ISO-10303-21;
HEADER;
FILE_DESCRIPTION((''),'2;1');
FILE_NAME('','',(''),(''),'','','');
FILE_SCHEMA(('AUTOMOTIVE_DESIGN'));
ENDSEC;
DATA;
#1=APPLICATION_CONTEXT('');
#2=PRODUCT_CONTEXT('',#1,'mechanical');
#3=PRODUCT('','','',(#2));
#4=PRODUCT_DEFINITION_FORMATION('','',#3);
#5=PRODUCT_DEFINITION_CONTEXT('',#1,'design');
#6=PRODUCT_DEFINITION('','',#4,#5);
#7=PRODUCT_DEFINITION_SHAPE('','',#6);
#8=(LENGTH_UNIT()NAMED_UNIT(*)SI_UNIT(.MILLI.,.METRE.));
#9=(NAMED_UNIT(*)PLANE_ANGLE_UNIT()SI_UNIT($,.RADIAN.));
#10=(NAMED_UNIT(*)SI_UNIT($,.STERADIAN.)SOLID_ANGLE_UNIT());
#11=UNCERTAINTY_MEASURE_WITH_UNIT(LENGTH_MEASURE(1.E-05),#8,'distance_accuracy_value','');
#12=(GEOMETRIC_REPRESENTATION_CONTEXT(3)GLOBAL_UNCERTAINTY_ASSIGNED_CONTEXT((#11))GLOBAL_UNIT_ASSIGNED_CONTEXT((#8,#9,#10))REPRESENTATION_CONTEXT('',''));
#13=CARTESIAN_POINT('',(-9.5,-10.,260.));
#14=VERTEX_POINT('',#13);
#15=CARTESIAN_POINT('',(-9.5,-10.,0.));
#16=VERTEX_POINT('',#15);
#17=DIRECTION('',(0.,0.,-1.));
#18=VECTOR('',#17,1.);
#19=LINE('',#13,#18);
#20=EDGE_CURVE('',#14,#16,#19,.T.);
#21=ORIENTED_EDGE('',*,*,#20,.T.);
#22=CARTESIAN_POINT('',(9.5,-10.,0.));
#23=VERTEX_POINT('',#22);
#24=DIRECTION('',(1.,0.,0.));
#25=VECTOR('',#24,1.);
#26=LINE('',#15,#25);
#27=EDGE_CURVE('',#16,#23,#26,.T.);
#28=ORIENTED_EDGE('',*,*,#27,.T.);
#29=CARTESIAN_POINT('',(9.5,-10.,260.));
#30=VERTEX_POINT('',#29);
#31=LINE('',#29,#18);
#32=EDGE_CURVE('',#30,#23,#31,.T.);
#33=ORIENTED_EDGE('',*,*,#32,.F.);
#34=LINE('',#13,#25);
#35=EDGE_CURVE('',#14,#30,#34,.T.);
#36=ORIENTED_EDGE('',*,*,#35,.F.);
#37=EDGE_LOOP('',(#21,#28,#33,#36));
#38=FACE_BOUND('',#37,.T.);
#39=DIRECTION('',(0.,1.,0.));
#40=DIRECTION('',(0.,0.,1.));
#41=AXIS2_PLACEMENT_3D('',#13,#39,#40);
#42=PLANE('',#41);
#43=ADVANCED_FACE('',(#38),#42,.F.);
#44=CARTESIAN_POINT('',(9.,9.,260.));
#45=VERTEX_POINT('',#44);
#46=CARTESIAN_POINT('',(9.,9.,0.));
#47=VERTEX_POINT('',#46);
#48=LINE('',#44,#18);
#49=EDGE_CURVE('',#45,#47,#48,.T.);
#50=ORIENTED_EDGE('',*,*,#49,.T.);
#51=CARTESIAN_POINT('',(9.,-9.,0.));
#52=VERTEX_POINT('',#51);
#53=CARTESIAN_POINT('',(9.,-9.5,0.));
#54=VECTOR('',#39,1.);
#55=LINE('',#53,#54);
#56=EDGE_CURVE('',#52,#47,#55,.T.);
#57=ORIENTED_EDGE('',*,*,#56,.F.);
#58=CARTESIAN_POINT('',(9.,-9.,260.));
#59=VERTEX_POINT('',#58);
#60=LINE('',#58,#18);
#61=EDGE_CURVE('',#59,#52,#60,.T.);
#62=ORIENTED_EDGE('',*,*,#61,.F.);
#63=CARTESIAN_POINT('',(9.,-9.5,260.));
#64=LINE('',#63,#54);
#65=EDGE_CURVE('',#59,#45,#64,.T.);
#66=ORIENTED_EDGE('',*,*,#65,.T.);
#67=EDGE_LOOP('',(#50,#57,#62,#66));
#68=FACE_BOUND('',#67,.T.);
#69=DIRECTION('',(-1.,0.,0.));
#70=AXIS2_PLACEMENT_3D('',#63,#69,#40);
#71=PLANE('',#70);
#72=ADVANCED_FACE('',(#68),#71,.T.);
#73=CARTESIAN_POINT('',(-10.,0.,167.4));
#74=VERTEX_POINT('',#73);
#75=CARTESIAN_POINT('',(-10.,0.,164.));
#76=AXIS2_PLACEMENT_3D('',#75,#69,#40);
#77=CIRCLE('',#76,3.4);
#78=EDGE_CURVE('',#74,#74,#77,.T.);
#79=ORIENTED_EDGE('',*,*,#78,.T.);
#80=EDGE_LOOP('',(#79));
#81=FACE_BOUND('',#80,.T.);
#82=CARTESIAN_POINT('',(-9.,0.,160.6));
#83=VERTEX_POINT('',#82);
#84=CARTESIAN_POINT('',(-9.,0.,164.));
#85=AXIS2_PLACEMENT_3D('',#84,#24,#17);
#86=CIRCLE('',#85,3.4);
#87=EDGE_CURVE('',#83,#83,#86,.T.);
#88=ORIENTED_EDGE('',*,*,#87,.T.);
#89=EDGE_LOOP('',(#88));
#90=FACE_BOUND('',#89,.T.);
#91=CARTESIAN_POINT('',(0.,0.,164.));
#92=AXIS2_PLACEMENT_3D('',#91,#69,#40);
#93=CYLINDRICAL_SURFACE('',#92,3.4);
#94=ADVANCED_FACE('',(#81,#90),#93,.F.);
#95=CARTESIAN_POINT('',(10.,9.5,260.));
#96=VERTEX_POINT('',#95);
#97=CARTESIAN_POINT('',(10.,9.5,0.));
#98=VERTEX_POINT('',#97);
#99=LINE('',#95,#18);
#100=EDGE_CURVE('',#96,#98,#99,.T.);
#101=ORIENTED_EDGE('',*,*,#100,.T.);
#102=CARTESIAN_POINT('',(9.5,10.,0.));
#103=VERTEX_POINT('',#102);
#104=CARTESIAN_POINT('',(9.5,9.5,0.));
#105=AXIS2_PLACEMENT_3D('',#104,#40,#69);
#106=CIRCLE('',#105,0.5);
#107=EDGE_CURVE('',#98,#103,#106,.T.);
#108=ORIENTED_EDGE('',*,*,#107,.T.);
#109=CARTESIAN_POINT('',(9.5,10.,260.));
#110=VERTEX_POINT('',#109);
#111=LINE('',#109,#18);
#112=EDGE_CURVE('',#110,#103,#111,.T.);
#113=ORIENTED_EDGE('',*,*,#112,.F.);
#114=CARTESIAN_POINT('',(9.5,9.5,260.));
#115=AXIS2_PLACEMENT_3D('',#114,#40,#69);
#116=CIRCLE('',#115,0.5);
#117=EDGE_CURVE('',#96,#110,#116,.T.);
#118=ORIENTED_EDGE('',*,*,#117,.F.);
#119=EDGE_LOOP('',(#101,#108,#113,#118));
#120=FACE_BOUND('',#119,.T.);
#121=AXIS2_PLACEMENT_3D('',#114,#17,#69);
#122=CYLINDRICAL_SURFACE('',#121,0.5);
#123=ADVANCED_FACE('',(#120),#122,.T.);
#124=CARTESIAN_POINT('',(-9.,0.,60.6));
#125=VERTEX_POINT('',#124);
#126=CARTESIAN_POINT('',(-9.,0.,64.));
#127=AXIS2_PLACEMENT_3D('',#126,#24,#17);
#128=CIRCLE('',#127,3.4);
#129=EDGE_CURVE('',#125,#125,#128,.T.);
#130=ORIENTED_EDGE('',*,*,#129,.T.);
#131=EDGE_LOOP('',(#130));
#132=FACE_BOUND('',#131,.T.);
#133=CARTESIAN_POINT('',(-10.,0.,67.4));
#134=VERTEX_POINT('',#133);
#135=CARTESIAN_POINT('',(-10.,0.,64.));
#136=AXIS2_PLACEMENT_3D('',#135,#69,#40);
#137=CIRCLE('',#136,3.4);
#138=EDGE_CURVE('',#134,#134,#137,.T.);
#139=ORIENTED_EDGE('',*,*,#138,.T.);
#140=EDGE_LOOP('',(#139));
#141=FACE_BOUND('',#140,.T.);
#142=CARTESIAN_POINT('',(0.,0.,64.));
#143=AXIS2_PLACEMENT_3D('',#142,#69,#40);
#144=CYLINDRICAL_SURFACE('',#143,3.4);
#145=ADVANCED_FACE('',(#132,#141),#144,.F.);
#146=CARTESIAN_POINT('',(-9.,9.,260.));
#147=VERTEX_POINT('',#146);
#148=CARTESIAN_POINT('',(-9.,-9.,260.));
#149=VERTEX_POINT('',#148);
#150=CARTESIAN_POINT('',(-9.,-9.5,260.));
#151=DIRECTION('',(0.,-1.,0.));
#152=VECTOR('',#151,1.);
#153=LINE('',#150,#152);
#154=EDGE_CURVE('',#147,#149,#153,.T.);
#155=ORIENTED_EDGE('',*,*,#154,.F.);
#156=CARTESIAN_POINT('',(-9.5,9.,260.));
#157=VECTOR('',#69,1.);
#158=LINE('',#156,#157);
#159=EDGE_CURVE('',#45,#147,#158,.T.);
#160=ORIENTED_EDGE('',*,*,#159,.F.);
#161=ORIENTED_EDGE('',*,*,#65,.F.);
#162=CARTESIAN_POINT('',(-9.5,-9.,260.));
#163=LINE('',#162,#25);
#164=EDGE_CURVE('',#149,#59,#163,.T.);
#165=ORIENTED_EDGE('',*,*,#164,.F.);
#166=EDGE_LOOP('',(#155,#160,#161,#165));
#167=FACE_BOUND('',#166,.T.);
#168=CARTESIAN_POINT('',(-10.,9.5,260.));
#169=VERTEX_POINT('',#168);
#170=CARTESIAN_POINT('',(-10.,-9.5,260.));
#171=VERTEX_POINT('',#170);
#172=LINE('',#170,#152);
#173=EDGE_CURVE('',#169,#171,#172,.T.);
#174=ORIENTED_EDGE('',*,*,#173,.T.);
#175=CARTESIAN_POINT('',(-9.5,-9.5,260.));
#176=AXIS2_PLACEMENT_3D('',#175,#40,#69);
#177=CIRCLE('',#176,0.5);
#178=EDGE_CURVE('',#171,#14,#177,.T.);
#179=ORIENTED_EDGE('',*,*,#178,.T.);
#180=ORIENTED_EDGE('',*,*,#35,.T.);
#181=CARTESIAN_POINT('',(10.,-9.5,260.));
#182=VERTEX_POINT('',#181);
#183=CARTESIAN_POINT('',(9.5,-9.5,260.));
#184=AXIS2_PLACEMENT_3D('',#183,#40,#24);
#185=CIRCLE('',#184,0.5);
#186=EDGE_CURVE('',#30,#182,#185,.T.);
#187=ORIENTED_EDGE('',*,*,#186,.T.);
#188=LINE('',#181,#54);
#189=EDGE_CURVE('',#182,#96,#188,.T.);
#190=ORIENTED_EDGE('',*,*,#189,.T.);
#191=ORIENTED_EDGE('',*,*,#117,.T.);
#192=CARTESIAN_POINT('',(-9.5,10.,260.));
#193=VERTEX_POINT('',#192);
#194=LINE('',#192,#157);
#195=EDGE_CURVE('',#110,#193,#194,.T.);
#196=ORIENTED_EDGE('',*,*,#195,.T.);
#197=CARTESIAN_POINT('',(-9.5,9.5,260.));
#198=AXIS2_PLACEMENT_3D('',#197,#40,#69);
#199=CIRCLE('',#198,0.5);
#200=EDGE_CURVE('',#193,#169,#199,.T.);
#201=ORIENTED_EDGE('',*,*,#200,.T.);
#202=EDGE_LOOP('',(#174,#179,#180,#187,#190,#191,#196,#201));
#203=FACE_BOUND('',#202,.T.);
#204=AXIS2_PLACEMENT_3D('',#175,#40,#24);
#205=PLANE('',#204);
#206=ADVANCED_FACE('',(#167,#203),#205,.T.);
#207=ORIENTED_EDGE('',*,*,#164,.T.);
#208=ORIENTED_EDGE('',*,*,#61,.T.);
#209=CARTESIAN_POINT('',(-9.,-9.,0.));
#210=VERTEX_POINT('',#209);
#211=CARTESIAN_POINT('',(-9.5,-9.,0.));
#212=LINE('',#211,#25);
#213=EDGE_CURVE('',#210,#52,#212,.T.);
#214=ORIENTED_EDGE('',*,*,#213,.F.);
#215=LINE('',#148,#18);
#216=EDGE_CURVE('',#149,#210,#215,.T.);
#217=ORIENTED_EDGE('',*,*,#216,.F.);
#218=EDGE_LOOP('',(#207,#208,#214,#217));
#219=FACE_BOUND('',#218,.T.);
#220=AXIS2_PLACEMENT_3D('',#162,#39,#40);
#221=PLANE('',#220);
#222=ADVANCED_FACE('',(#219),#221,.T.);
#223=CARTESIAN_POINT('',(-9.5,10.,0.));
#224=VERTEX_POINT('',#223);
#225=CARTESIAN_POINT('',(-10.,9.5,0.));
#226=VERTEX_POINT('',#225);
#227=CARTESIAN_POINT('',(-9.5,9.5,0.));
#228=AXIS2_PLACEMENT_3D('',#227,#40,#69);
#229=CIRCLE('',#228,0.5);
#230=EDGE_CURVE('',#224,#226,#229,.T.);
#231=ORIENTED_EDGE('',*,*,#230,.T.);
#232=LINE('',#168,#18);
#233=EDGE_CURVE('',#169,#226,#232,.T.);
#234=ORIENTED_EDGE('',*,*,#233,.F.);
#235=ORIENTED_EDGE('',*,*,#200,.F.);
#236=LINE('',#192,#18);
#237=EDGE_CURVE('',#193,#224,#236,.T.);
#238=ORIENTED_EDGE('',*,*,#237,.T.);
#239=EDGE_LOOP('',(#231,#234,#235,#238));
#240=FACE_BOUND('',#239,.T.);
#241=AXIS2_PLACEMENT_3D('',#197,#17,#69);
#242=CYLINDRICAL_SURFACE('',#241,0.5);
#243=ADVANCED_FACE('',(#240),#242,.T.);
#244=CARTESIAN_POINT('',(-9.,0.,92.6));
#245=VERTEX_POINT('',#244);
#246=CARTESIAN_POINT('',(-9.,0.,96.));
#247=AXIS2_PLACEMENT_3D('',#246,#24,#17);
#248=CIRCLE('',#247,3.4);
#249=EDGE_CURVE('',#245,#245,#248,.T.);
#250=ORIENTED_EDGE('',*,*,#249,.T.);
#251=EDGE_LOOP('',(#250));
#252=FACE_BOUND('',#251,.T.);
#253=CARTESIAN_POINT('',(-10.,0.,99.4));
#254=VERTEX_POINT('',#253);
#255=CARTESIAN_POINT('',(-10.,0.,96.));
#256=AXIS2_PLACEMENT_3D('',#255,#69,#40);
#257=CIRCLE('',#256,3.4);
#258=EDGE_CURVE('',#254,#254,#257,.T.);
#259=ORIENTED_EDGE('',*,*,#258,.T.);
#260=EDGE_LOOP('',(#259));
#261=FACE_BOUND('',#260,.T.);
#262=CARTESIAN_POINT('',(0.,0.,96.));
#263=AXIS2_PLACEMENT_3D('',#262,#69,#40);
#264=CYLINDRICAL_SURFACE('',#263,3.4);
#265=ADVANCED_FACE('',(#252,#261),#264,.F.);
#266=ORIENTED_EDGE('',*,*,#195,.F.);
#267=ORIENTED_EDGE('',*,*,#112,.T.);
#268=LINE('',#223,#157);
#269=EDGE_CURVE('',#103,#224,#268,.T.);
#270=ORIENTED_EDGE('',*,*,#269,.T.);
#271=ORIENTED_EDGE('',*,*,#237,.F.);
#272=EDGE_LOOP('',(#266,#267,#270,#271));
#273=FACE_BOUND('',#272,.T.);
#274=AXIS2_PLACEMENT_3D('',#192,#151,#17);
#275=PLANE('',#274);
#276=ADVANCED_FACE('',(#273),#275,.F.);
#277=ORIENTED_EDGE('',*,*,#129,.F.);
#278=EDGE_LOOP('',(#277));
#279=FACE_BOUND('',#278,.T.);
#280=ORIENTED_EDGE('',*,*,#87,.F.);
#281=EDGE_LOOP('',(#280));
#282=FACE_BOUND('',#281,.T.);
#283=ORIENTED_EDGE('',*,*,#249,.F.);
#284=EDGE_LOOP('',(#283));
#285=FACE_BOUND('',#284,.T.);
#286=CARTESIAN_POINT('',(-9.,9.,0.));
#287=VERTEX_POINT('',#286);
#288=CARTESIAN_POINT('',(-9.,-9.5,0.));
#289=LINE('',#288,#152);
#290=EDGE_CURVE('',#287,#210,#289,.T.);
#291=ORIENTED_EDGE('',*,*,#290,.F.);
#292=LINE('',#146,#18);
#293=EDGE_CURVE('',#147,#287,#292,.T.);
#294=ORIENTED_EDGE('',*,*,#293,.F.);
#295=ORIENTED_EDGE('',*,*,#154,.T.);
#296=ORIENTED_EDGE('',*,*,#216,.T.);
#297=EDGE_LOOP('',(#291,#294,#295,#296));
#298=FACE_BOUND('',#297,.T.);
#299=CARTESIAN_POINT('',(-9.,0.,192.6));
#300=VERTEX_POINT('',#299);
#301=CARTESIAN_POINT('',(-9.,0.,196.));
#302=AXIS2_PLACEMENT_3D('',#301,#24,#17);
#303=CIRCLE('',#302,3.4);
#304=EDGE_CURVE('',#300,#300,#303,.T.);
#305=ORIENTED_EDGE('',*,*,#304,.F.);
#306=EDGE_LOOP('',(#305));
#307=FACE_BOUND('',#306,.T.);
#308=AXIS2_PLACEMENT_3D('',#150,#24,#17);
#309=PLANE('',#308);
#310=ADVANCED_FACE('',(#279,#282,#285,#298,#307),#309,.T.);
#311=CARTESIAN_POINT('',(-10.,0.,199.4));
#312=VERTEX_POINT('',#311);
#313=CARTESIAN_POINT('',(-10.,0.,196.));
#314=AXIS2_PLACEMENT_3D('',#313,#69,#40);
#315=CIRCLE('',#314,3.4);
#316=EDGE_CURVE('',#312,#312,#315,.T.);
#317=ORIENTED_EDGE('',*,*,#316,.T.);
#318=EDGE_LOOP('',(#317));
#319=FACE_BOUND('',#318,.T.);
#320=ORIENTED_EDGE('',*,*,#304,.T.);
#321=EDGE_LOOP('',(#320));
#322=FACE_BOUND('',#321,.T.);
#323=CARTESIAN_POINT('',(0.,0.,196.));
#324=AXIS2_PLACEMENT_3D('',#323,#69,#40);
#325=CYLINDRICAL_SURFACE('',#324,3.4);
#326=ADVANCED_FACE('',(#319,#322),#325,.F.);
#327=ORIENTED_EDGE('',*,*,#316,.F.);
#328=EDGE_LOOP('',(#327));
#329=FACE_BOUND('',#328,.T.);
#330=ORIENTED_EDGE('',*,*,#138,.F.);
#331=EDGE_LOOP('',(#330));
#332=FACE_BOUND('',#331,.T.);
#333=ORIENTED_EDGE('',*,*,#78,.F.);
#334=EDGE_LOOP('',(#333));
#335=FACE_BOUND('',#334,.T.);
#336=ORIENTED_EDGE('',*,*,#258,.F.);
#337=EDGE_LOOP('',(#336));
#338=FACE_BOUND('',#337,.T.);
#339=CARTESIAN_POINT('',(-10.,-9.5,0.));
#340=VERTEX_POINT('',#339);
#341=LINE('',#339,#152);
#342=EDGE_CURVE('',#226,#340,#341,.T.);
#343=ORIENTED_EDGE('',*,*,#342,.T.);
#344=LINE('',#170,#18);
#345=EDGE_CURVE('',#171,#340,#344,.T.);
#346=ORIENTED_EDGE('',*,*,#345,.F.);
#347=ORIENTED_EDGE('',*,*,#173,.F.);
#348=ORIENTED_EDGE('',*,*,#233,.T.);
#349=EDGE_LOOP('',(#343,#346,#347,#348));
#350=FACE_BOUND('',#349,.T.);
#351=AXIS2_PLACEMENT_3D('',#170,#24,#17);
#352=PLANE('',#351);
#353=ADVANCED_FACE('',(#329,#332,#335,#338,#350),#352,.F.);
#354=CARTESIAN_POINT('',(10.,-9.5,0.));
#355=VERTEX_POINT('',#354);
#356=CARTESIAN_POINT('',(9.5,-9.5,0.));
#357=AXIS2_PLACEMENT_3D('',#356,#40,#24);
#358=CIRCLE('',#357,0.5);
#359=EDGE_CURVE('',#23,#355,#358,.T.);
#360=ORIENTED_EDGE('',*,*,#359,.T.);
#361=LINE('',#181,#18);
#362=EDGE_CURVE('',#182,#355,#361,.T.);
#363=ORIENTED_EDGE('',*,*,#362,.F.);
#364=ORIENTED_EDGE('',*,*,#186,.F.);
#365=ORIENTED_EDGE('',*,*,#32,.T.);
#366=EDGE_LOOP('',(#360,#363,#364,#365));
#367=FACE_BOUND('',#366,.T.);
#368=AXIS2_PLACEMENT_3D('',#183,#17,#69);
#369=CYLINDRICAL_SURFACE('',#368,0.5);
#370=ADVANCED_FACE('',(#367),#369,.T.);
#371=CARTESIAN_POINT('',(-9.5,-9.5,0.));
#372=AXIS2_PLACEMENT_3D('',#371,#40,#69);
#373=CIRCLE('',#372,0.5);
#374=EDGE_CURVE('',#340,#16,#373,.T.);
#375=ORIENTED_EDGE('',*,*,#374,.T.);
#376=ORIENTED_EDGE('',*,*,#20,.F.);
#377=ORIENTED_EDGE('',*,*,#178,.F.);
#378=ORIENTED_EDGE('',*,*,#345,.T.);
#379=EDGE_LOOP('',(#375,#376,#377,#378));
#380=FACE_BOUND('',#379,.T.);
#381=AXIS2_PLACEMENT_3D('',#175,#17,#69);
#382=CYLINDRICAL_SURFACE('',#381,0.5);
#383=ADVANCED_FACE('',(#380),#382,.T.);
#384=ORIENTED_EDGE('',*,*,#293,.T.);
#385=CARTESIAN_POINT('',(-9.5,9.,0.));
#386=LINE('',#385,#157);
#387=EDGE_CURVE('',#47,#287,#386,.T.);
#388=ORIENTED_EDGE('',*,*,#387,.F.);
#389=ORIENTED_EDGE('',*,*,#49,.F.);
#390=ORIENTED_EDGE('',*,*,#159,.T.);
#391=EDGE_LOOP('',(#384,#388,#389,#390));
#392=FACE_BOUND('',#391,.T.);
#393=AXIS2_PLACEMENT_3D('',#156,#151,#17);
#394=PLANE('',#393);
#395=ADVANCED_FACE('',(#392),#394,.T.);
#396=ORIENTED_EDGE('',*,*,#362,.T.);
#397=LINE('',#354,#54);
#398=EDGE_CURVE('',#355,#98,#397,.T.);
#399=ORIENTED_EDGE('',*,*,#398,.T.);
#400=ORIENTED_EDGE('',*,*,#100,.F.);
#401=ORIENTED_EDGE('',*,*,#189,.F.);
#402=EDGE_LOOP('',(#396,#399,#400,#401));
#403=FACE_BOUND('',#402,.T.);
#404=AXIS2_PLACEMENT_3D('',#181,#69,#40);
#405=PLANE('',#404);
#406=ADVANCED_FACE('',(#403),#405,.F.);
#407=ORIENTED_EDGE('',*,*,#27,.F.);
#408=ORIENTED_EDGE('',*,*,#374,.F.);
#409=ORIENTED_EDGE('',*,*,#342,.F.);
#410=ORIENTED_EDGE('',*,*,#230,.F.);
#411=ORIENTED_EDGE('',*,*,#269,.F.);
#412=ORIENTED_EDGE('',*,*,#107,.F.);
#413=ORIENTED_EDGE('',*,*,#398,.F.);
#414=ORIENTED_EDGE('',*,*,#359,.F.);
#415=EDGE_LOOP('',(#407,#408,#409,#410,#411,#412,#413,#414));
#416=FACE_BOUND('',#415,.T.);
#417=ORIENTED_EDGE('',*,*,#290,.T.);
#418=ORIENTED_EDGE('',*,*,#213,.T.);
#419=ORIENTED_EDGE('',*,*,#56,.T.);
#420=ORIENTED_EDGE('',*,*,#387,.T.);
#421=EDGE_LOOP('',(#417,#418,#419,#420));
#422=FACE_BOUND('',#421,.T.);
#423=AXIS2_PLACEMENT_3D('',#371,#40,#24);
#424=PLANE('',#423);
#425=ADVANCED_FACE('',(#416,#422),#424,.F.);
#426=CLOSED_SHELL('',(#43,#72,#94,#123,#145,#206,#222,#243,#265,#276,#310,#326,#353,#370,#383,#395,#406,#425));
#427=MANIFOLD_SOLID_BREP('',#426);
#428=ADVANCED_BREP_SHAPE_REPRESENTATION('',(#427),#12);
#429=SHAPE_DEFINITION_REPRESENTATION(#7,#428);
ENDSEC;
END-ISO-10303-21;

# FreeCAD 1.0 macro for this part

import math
import FreeCAD as App
import Part
import Sketcher

V = App.Vector


def add_polygon(sketch, points):
    """Adds a closed chain of lines whose ends are joined by coincident constraints."""
    first, n = sketch.GeometryCount, len(points)
    for a, b in zip(points, points[1:] + points[:1]):
        sketch.addGeometry(Part.LineSegment(App.Vector(*a, 0), App.Vector(*b, 0)), False)
    for i in range(n):
        sketch.addConstraint(Sketcher.Constraint("Coincident", first + i, 2, first + (i + 1) % n, 1))

doc = App.newDocument("Part")
params = doc.addObject("Spreadsheet::Sheet", "Params")
for row, (alias, value) in enumerate([
    ("sketch1_radius", "0.5 mm"),
    ("sketch1_width", "19 mm"),
    ("sketch1_width2", "18 mm"),
    ("pad1_length", "260 mm"),
    ("sketch2_diameter", "6.8 mm"),
    ("pocket1_length", "10 mm"),
], start=1):
    params.set(f"A{row}", alias)
    params.set(f"B{row}", "=" + value)
    params.setAlias(f"B{row}", alias)

body = doc.addObject("PartDesign::Body", "Body")

# Sketch on XY plane
sketch1 = body.newObject("Sketcher::SketchObject", "Sketch")
sketch1.AttachmentSupport = (doc.getObject("XY_Plane"), [""])
sketch1.MapMode = "FlatFace"
sketch1.addGeometry(Part.LineSegment(V(-10, 9.5, 0), V(-10, -9.5, 0)), False)  # 0
sketch1.addGeometry(Part.ArcOfCircle(Part.Circle(V(-9.5, -9.5, 0), V(0, 0, 1), 0.5), math.radians(180), math.radians(270)), False)  # 1
sketch1.addGeometry(Part.LineSegment(V(-9.5, -10, 0), V(9.5, -10, 0)), False)  # 2
sketch1.addGeometry(Part.ArcOfCircle(Part.Circle(V(9.5, -9.5, 0), V(0, 0, 1), 0.5), math.radians(-90), math.radians(0)), False)  # 3
sketch1.addGeometry(Part.LineSegment(V(10, -9.5, 0), V(10, 9.5, 0)), False)  # 4
sketch1.addGeometry(Part.ArcOfCircle(Part.Circle(V(9.5, 9.5, 0), V(0, 0, 1), 0.5), math.radians(0), math.radians(90)), False)  # 5
sketch1.addGeometry(Part.LineSegment(V(9.5, 10, 0), V(-9.5, 10, 0)), False)  # 6
sketch1.addGeometry(Part.ArcOfCircle(Part.Circle(V(-9.5, 9.5, 0), V(0, 0, 1), 0.5), math.radians(90), math.radians(180)), False)  # 7
add_polygon(sketch1, [(9, -9), (-9, -9), (-9, 9), (9, 9)])  # lines 8-11
sketch1.addConstraint(Sketcher.Constraint("Tangent", 0, 2, 1, 1))
sketch1.addConstraint(Sketcher.Constraint("Tangent", 1, 2, 2, 1))
sketch1.addConstraint(Sketcher.Constraint("Tangent", 2, 2, 3, 1))
sketch1.addConstraint(Sketcher.Constraint("Tangent", 3, 2, 4, 1))
sketch1.addConstraint(Sketcher.Constraint("Tangent", 4, 2, 5, 1))
sketch1.addConstraint(Sketcher.Constraint("Tangent", 5, 2, 6, 1))
sketch1.addConstraint(Sketcher.Constraint("Tangent", 6, 2, 7, 1))
sketch1.addConstraint(Sketcher.Constraint("Tangent", 7, 2, 0, 1))
sketch1.addConstraint(Sketcher.Constraint("Vertical", 0))
sketch1.addConstraint(Sketcher.Constraint("Horizontal", 2))
sketch1.addConstraint(Sketcher.Constraint("Vertical", 4))
sketch1.addConstraint(Sketcher.Constraint("Horizontal", 6))
sketch1.addConstraint(Sketcher.Constraint("Horizontal", 8))
sketch1.addConstraint(Sketcher.Constraint("Vertical", 9))
sketch1.addConstraint(Sketcher.Constraint("Horizontal", 10))
sketch1.addConstraint(Sketcher.Constraint("Vertical", 11))
sketch1.addConstraint(Sketcher.Constraint("Equal", 1, 3))
sketch1.addConstraint(Sketcher.Constraint("Equal", 3, 5))
sketch1.addConstraint(Sketcher.Constraint("Equal", 5, 7))
sketch1.addConstraint(Sketcher.Constraint("Symmetric", 1, 3, 5, 3, -1, 1))
sketch1.addConstraint(Sketcher.Constraint("Symmetric", 8, 2, 10, 2, -1, 1))
sketch1.addConstraint(Sketcher.Constraint("Equal", 6, 0))
sketch1.addConstraint(Sketcher.Constraint("Equal", 10, 9))
sketch1.addConstraint(Sketcher.Constraint("Radius", 1, 0.5))
sketch1.addConstraint(Sketcher.Constraint("DistanceX", 2, 1, 2, 2, 19.0))
sketch1.addConstraint(Sketcher.Constraint("DistanceX", 8, 2, 8, 1, 18.0))
sketch1.setExpression("Constraints[27]", "Params.sketch1_radius")
sketch1.setExpression("Constraints[28]", "Params.sketch1_width")
sketch1.setExpression("Constraints[29]", "Params.sketch1_width2")
pad1 = body.newObject("PartDesign::Pad", "Pad")
pad1.Profile = sketch1
pad1.setExpression("Length", "Params.pad1_length")

# Sketch on YZ plane
sketch2 = body.newObject("Sketcher::SketchObject", "Sketch001")
sketch2.AttachmentSupport = (doc.getObject("YZ_Plane"), [""])
sketch2.MapMode = "FlatFace"
sketch2.AttachmentOffset = App.Placement(V(0, 0, -10), App.Rotation())
sketch2.addGeometry(Part.Circle(V(0, 64, 0), V(0, 0, 1), 3.4), False)
sketch2.addGeometry(Part.Circle(V(0, 164, 0), V(0, 0, 1), 3.4), False)
sketch2.addGeometry(Part.Circle(V(0, 196, 0), V(0, 0, 1), 3.4), False)
sketch2.addGeometry(Part.Circle(V(0, 96, 0), V(0, 0, 1), 3.4), False)
sketch2.addConstraint(Sketcher.Constraint("Equal", 0, 1))
sketch2.addConstraint(Sketcher.Constraint("Equal", 1, 2))
sketch2.addConstraint(Sketcher.Constraint("Equal", 2, 3))
sketch2.addConstraint(Sketcher.Constraint("PointOnObject", 0, 3, -2))
sketch2.addConstraint(Sketcher.Constraint("PointOnObject", 1, 3, -2))
sketch2.addConstraint(Sketcher.Constraint("PointOnObject", 2, 3, -2))
sketch2.addConstraint(Sketcher.Constraint("PointOnObject", 3, 3, -2))
sketch2.addConstraint(Sketcher.Constraint("Diameter", 0, 6.8))
sketch2.addConstraint(Sketcher.Constraint("DistanceY", -1, 1, 0, 3, 64.0))
sketch2.addConstraint(Sketcher.Constraint("DistanceY", -1, 1, 1, 3, 164.0))
sketch2.addConstraint(Sketcher.Constraint("DistanceY", -1, 1, 2, 3, 196.0))
sketch2.addConstraint(Sketcher.Constraint("DistanceY", -1, 1, 3, 3, 96.0))
sketch2.setExpression("Constraints[7]", "Params.sketch2_diameter")
pocket1 = body.newObject("PartDesign::Pocket", "Pocket")
pocket1.Profile = sketch2
pocket1.setExpression("Length", "Params.pocket1_length")
pocket1.Reversed = True

doc.recompute()
